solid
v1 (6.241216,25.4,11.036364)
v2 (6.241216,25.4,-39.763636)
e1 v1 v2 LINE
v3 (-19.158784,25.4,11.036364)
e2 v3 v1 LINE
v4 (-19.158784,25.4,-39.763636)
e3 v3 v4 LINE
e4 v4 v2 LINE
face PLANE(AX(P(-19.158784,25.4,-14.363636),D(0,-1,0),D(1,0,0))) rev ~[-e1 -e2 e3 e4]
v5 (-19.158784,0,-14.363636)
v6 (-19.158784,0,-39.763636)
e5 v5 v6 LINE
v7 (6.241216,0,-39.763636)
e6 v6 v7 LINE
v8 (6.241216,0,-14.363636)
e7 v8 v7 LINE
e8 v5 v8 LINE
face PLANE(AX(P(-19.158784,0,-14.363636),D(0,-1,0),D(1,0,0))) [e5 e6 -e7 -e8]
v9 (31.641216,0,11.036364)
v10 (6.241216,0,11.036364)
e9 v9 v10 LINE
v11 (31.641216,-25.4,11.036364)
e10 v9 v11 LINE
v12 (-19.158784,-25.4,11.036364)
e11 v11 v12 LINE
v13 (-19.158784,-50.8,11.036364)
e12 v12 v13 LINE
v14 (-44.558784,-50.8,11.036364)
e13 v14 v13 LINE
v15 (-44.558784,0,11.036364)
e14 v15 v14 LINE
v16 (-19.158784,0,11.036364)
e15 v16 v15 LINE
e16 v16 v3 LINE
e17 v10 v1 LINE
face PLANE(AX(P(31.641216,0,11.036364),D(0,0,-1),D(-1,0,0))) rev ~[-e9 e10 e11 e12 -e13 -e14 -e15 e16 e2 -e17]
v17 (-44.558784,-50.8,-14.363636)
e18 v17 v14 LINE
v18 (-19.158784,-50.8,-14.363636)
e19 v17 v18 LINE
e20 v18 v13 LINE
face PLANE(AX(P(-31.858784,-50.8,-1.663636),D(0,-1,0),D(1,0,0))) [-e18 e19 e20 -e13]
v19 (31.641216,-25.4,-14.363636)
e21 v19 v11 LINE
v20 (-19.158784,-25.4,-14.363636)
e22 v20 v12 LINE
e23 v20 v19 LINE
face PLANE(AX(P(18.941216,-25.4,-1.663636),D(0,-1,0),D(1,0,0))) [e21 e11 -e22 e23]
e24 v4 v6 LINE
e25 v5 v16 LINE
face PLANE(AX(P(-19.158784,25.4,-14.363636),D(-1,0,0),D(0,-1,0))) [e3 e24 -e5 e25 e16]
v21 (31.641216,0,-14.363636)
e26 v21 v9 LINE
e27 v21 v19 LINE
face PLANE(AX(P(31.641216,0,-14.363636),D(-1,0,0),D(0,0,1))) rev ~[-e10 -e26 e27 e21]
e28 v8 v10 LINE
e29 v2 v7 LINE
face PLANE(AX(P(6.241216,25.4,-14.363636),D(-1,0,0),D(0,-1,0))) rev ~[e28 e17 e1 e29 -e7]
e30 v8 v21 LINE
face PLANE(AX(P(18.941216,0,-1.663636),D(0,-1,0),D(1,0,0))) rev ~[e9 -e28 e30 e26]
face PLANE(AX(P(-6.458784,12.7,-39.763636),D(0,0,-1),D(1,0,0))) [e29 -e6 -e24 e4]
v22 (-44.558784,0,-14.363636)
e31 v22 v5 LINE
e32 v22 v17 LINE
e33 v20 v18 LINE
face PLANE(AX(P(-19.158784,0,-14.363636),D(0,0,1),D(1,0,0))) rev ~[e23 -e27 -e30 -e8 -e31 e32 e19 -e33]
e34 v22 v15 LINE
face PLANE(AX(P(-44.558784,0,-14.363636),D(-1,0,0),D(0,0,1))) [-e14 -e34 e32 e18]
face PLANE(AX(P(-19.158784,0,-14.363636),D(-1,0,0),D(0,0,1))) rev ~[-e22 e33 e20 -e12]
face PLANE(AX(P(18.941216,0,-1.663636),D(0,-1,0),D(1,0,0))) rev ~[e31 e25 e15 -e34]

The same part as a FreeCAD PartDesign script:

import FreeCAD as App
import Part
import Sketcher

V = App.Vector
Q = App.Units.Quantity


def add_polygon(sketch, points):
    """Adds a closed chain of lines whose ends are joined by coincident constraints."""
    first, n = sketch.GeometryCount, len(points)
    for a, b in zip(points, points[1:] + points[:1]):
        sketch.addGeometry(Part.LineSegment(App.Vector(*a, 0), App.Vector(*b, 0)), False)
    for i in range(n):
        sketch.addConstraint(Sketcher.Constraint("Coincident", first + i, 2, first + (i + 1) % n, 1))

doc = App.newDocument("Part")
body = doc.addObject("PartDesign::Body", "Body")

sketch1 = body.newObject("Sketcher::SketchObject", "Sketch")
sketch1.AttachmentSupport = (doc.getObject("XZ_Plane"), [""])
sketch1.MapMode = "FlatFace"
add_polygon(sketch1, [(-45, 11), (-45, -14), (-19, -14), (-19, 11)])
sketch1.addConstraint([
    Sketcher.Constraint("Vertical", 0),
    Sketcher.Constraint("Horizontal", 1),
    Sketcher.Constraint("Vertical", 2),
    Sketcher.Constraint("Horizontal", 3),
    Sketcher.Constraint("Equal", 3, 0),
    Sketcher.Constraint("DistanceX", 1, 1, 1, 2, Q("1 in")),
    Sketcher.Constraint("DistanceX", 0, 2, -1, 1, Q("44.558784 mm")),
    Sketcher.Constraint("DistanceY", 0, 2, -1, 1, Q("14.363636 mm")),
])
pad1 = body.newObject("PartDesign::Pad", "Pad")
pad1.Profile = sketch1
pad1.Length = Q("2 in")

sketch2 = body.newObject("Sketcher::SketchObject", "Sketch001")
sketch2.AttachmentSupport = (doc.getObject("XZ_Plane"), [""])
sketch2.MapMode = "FlatFace"
add_polygon(sketch2, [(32, -14), (32, 11), (-19, 11), (-19, -14)])
sketch2.addConstraint([
    Sketcher.Constraint("Vertical", 0),
    Sketcher.Constraint("Horizontal", 1),
    Sketcher.Constraint("Vertical", 2),
    Sketcher.Constraint("Horizontal", 3),
    Sketcher.Constraint("DistanceX", 1, 2, 1, 1, Q("2 in")),
    Sketcher.Constraint("DistanceY", 0, 1, 0, 2, Q("1 in")),
    Sketcher.Constraint("DistanceX", -1, 1, 0, 2, Q("31.641216 mm")),
    Sketcher.Constraint("DistanceY", -1, 1, 0, 2, Q("11.036364 mm")),
])
pad2 = body.newObject("PartDesign::Pad", "Pad001")
pad2.Profile = sketch2
pad2.Length = Q("1 in")

sketch3 = body.newObject("Sketcher::SketchObject", "Sketch002")
sketch3.AttachmentSupport = (doc.getObject("XZ_Plane"), [""])
sketch3.MapMode = "FlatFace"
add_polygon(sketch3, [(-19, 11), (-19, -14), (6, -14), (6, 11)])
sketch3.addConstraint([
    Sketcher.Constraint("Vertical", 0),
    Sketcher.Constraint("Horizontal", 1),
    Sketcher.Constraint("Vertical", 2),
    Sketcher.Constraint("Horizontal", 3),
    Sketcher.Constraint("Equal", 3, 0),
    Sketcher.Constraint("DistanceX", 1, 1, 1, 2, Q("1 in")),
    Sketcher.Constraint("DistanceX", 0, 2, -1, 1, Q("19.158784 mm")),
    Sketcher.Constraint("DistanceY", 0, 2, -1, 1, Q("14.363636 mm")),
])
pad3 = body.newObject("PartDesign::Pad", "Pad002")
pad3.Profile = sketch3
pad3.Length = Q("1 in")
pad3.Reversed = True

sketch4 = body.newObject("Sketcher::SketchObject", "Sketch003")
sketch4.AttachmentSupport = (doc.getObject("XY_Plane"), [""])
sketch4.MapMode = "FlatFace"
sketch4.AttachmentOffset = App.Placement(V(0, 0, -14.363636), App.Rotation())
add_polygon(sketch4, [(-19, 0), (-19, 25), (6, 25), (6, 0)])
sketch4.addConstraint([
    Sketcher.Constraint("Vertical", 0),
    Sketcher.Constraint("Horizontal", 1),
    Sketcher.Constraint("Vertical", 2),
    Sketcher.Constraint("Horizontal", 3),
    Sketcher.Constraint("PointOnObject", 2, 2, -1),
    Sketcher.Constraint("Equal", 3, 0),
    Sketcher.Constraint("DistanceX", 1, 1, 1, 2, Q("1 in")),
    Sketcher.Constraint("DistanceX", 0, 2, -1, 1, Q("19.158784 mm")),
])
pad4 = body.newObject("PartDesign::Pad", "Pad003")
pad4.Profile = sketch4
pad4.Length = Q("1 in")
pad4.Reversed = True

doc.recompute()
